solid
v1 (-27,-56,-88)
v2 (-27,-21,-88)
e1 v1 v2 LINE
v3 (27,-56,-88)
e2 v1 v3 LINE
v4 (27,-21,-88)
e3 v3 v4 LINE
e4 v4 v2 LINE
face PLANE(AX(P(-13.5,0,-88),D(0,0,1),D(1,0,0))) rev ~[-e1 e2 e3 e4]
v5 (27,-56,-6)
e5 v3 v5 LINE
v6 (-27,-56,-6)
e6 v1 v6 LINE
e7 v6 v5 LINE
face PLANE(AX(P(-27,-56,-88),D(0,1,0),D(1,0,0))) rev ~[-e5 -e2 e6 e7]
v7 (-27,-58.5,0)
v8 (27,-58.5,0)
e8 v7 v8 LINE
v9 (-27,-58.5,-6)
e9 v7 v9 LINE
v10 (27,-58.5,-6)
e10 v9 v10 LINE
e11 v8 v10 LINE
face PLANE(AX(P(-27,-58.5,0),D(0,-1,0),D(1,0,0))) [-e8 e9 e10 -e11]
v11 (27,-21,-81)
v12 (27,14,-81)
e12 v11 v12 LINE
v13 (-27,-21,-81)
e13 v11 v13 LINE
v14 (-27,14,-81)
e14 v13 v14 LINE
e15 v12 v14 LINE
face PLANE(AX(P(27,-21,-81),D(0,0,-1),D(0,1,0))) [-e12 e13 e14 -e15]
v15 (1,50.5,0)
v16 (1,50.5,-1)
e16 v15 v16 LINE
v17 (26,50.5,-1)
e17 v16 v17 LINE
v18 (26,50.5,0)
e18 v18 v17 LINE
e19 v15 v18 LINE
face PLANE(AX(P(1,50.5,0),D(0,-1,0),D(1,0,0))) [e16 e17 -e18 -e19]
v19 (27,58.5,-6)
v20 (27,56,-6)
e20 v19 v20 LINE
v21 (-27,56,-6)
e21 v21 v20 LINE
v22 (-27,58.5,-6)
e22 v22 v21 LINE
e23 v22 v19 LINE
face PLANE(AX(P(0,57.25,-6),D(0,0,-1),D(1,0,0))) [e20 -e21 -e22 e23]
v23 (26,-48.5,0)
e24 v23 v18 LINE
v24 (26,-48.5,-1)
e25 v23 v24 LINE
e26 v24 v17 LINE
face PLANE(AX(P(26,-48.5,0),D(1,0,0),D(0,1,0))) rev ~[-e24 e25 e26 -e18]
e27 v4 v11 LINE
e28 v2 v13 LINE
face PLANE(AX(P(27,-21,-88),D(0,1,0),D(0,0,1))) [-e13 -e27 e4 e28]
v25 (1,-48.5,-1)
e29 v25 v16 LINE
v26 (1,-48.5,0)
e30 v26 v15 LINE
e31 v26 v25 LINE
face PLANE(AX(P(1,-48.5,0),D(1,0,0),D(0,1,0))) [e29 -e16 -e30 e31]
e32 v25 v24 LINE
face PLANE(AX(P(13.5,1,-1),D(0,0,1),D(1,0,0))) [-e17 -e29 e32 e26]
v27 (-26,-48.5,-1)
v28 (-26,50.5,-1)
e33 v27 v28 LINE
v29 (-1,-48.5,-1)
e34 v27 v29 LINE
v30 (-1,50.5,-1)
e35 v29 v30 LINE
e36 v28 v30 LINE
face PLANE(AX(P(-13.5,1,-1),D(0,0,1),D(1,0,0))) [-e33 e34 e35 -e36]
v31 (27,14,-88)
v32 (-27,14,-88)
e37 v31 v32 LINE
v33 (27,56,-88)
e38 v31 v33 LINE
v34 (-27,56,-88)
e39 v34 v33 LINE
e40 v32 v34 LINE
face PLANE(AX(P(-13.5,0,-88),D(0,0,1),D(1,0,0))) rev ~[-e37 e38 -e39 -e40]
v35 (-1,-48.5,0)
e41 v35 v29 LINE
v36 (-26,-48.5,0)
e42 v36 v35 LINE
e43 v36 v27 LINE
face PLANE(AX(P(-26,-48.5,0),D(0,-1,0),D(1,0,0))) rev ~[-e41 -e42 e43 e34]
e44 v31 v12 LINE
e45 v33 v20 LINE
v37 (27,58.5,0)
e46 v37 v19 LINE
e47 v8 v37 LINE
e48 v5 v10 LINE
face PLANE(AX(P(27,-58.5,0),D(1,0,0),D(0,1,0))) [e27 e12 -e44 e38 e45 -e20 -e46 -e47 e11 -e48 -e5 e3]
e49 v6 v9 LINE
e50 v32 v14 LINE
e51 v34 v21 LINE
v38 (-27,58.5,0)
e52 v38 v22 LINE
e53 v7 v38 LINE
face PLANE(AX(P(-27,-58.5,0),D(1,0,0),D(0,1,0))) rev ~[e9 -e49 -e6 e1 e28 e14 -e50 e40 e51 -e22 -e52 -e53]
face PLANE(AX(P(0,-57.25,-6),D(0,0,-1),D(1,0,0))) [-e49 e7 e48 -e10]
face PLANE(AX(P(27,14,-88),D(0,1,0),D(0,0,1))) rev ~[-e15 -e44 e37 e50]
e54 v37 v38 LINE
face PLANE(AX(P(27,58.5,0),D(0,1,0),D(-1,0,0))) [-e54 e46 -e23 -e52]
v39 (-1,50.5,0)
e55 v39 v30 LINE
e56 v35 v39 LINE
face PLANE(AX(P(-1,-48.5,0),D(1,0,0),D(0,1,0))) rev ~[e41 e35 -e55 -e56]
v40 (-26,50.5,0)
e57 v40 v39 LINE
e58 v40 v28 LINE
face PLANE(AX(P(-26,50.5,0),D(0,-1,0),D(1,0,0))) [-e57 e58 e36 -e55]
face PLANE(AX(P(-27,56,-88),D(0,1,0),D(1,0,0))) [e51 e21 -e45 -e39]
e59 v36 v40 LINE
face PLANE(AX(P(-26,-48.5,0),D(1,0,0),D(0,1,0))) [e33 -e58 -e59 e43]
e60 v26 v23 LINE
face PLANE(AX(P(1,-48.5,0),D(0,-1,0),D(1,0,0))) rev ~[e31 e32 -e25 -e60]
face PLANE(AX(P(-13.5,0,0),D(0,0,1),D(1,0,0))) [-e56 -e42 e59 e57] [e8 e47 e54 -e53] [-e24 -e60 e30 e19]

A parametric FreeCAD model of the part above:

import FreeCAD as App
import Part
import Sketcher
from FreeCAD import Vector
Q = App.Units.Quantity

doc = App.newDocument("Part")
body = doc.addObject("PartDesign::Body", "Body")

# Sketch on XY plane
sketch1 = body.newObject("Sketcher::SketchObject", "Sketch")
sketch1.AttachmentSupport = (doc.getObject("XY_Plane"), [""])
sketch1.MapMode = "FlatFace"
sketch1.addGeometry([
    Part.LineSegment(Vector(-27, 58.5, 0), Vector(-27, -58.5, 0)),
    Part.LineSegment(Vector(-27, -58.5, 0), Vector(27, -58.5, 0)),
    Part.LineSegment(Vector(27, -58.5, 0), Vector(27, 58.5, 0)),
    Part.LineSegment(Vector(27, 58.5, 0), Vector(-27, 58.5, 0)),
], False)
sketch1.addConstraint([
    Sketcher.Constraint("Coincident", 0, 2, 1, 1),
    Sketcher.Constraint("Coincident", 1, 2, 2, 1),
    Sketcher.Constraint("Coincident", 2, 2, 3, 1),
    Sketcher.Constraint("Coincident", 3, 2, 0, 1),
    Sketcher.Constraint("Vertical", 0),
    Sketcher.Constraint("Horizontal", 1),
    Sketcher.Constraint("Vertical", 2),
    Sketcher.Constraint("Horizontal", 3),
    Sketcher.Constraint("Symmetric", 0, 2, 2, 2, -1, 1),
    Sketcher.Constraint("DistanceX", 1, 1, 1, 2, Q("54 mm")),
    Sketcher.Constraint("DistanceY", 0, 2, 0, 1, Q("117 mm")),
])
pad1 = body.newObject("PartDesign::Pad", "Pad")
pad1.Profile = sketch1
pad1.Length = 88
pad1.Reversed = True

# Sketch on XY plane
sketch2 = body.newObject("Sketcher::SketchObject", "Sketch001")
sketch2.AttachmentSupport = (doc.getObject("XY_Plane"), [""])
sketch2.MapMode = "FlatFace"
sketch2.addGeometry([
    Part.LineSegment(Vector(-26, 50.5, 0), Vector(-26, -48.5, 0)),  # 0
    Part.LineSegment(Vector(-26, -48.5, 0), Vector(-1, -48.5, 0)),  # 1
    Part.LineSegment(Vector(-1, -48.5, 0), Vector(-1, 50.5, 0)),  # 2
    Part.LineSegment(Vector(-1, 50.5, 0), Vector(-26, 50.5, 0)),  # 3
    Part.LineSegment(Vector(1, 50.5, 0), Vector(1, -48.5, 0)),  # 4
    Part.LineSegment(Vector(1, -48.5, 0), Vector(26, -48.5, 0)),  # 5
    Part.LineSegment(Vector(26, -48.5, 0), Vector(26, 50.5, 0)),  # 6
    Part.LineSegment(Vector(26, 50.5, 0), Vector(1, 50.5, 0)),  # 7
], False)
sketch2.addConstraint([
    Sketcher.Constraint("Coincident", 0, 2, 1, 1),
    Sketcher.Constraint("Coincident", 1, 2, 2, 1),
    Sketcher.Constraint("Coincident", 2, 2, 3, 1),
    Sketcher.Constraint("Coincident", 3, 2, 0, 1),
    Sketcher.Constraint("Coincident", 4, 2, 5, 1),
    Sketcher.Constraint("Coincident", 5, 2, 6, 1),
    Sketcher.Constraint("Coincident", 6, 2, 7, 1),
    Sketcher.Constraint("Coincident", 7, 2, 4, 1),
    Sketcher.Constraint("Vertical", 0),
    Sketcher.Constraint("Horizontal", 1),
    Sketcher.Constraint("Vertical", 2),
    Sketcher.Constraint("Horizontal", 3),
    Sketcher.Constraint("Vertical", 4),
    Sketcher.Constraint("Horizontal", 5),
    Sketcher.Constraint("Vertical", 6),
    Sketcher.Constraint("Horizontal", 7),
    Sketcher.Constraint("Symmetric", 1, 2, 4, 2, -2),
    Sketcher.Constraint("Symmetric", 3, 2, 6, 2, -2),
    Sketcher.Constraint("DistanceX", 1, 1, 1, 2, Q("25 mm")),
    Sketcher.Constraint("DistanceY", 0, 2, 0, 1, Q("99 mm")),
    Sketcher.Constraint("DistanceX", 0, 2, -1, 1, Q("26 mm")),
    Sketcher.Constraint("DistanceY", 0, 2, -1, 1, Q("48.5 mm")),
])
pocket1 = body.newObject("PartDesign::Pocket", "Pocket")
pocket1.Profile = sketch2
pocket1.Length = 1

# Sketch on XY plane
sketch3 = body.newObject("Sketcher::SketchObject", "Sketch002")
sketch3.AttachmentSupport = (doc.getObject("XY_Plane"), [""])
sketch3.MapMode = "FlatFace"
sketch3.AttachmentOffset = App.Placement(Vector(0, 0, -88), App.Rotation())
sketch3.addGeometry([
    Part.LineSegment(Vector(-27, -58.5, 0), Vector(-27, -56, 0)),  # 0
    Part.LineSegment(Vector(-27, -56, 0), Vector(27, -56, 0)),  # 1
    Part.LineSegment(Vector(27, -56, 0), Vector(27, -58.5, 0)),  # 2
    Part.LineSegment(Vector(27, -58.5, 0), Vector(-27, -58.5, 0)),  # 3
    Part.LineSegment(Vector(-27, 56, 0), Vector(-27, 58.5, 0)),  # 4
    Part.LineSegment(Vector(-27, 58.5, 0), Vector(27, 58.5, 0)),  # 5
    Part.LineSegment(Vector(27, 58.5, 0), Vector(27, 56, 0)),  # 6
    Part.LineSegment(Vector(27, 56, 0), Vector(-27, 56, 0)),  # 7
], False)
sketch3.addConstraint([
    Sketcher.Constraint("Coincident", 0, 2, 1, 1),
    Sketcher.Constraint("Coincident", 1, 2, 2, 1),
    Sketcher.Constraint("Coincident", 2, 2, 3, 1),
    Sketcher.Constraint("Coincident", 3, 2, 0, 1),
    Sketcher.Constraint("Coincident", 4, 2, 5, 1),
    Sketcher.Constraint("Coincident", 5, 2, 6, 1),
    Sketcher.Constraint("Coincident", 6, 2, 7, 1),
    Sketcher.Constraint("Coincident", 7, 2, 4, 1),
    Sketcher.Constraint("Vertical", 0),
    Sketcher.Constraint("Horizontal", 1),
    Sketcher.Constraint("Vertical", 2),
    Sketcher.Constraint("Horizontal", 3),
    Sketcher.Constraint("Vertical", 4),
    Sketcher.Constraint("Horizontal", 5),
    Sketcher.Constraint("Vertical", 6),
    Sketcher.Constraint("Horizontal", 7),
    Sketcher.Constraint("Symmetric", 2, 2, 4, 2, -1, 1),
    Sketcher.Constraint("Symmetric", 0, 2, 6, 2, -1, 1),
    Sketcher.Constraint("Vertical", 3, 2, 4, 2),
    Sketcher.Constraint("DistanceX", 1, 1, 1, 2, Q("54 mm")),
    Sketcher.Constraint("DistanceY", 0, 1, 0, 2, Q("2.5 mm")),
    Sketcher.Constraint("DistanceY", 0, 2, -1, 1, Q("56 mm")),
])
pocket2 = body.newObject("PartDesign::Pocket", "Pocket001")
pocket2.Profile = sketch3
pocket2.Length = 82
pocket2.Reversed = True

# Sketch on YZ plane
sketch4 = body.newObject("Sketcher::SketchObject", "Sketch003")
sketch4.AttachmentSupport = (doc.getObject("YZ_Plane"), [""])
sketch4.MapMode = "FlatFace"
sketch4.AttachmentOffset = App.Placement(Vector(0, 0, 27), App.Rotation())
sketch4.addGeometry([
    Part.LineSegment(Vector(-21, -81, 0), Vector(-21, -88, 0)),
    Part.LineSegment(Vector(-21, -88, 0), Vector(14, -88, 0)),
    Part.LineSegment(Vector(14, -88, 0), Vector(14, -81, 0)),
    Part.LineSegment(Vector(14, -81, 0), Vector(-21, -81, 0)),
], False)
sketch4.addConstraint([
    Sketcher.Constraint("Coincident", 0, 2, 1, 1),
    Sketcher.Constraint("Coincident", 1, 2, 2, 1),
    Sketcher.Constraint("Coincident", 2, 2, 3, 1),
    Sketcher.Constraint("Coincident", 3, 2, 0, 1),
    Sketcher.Constraint("Vertical", 0),
    Sketcher.Constraint("Horizontal", 1),
    Sketcher.Constraint("Vertical", 2),
    Sketcher.Constraint("Horizontal", 3),
    Sketcher.Constraint("DistanceX", 1, 1, 1, 2, Q("35 mm")),
    Sketcher.Constraint("DistanceY", 0, 2, 0, 1, Q("7 mm")),
    Sketcher.Constraint("DistanceX", 0, 2, -1, 1, Q("21 mm")),
    Sketcher.Constraint("DistanceY", 0, 2, -1, 1, Q("88 mm")),
])
pocket3 = body.newObject("PartDesign::Pocket", "Pocket002")
pocket3.Profile = sketch4
pocket3.Type = "ThroughAll"

doc.recompute()
